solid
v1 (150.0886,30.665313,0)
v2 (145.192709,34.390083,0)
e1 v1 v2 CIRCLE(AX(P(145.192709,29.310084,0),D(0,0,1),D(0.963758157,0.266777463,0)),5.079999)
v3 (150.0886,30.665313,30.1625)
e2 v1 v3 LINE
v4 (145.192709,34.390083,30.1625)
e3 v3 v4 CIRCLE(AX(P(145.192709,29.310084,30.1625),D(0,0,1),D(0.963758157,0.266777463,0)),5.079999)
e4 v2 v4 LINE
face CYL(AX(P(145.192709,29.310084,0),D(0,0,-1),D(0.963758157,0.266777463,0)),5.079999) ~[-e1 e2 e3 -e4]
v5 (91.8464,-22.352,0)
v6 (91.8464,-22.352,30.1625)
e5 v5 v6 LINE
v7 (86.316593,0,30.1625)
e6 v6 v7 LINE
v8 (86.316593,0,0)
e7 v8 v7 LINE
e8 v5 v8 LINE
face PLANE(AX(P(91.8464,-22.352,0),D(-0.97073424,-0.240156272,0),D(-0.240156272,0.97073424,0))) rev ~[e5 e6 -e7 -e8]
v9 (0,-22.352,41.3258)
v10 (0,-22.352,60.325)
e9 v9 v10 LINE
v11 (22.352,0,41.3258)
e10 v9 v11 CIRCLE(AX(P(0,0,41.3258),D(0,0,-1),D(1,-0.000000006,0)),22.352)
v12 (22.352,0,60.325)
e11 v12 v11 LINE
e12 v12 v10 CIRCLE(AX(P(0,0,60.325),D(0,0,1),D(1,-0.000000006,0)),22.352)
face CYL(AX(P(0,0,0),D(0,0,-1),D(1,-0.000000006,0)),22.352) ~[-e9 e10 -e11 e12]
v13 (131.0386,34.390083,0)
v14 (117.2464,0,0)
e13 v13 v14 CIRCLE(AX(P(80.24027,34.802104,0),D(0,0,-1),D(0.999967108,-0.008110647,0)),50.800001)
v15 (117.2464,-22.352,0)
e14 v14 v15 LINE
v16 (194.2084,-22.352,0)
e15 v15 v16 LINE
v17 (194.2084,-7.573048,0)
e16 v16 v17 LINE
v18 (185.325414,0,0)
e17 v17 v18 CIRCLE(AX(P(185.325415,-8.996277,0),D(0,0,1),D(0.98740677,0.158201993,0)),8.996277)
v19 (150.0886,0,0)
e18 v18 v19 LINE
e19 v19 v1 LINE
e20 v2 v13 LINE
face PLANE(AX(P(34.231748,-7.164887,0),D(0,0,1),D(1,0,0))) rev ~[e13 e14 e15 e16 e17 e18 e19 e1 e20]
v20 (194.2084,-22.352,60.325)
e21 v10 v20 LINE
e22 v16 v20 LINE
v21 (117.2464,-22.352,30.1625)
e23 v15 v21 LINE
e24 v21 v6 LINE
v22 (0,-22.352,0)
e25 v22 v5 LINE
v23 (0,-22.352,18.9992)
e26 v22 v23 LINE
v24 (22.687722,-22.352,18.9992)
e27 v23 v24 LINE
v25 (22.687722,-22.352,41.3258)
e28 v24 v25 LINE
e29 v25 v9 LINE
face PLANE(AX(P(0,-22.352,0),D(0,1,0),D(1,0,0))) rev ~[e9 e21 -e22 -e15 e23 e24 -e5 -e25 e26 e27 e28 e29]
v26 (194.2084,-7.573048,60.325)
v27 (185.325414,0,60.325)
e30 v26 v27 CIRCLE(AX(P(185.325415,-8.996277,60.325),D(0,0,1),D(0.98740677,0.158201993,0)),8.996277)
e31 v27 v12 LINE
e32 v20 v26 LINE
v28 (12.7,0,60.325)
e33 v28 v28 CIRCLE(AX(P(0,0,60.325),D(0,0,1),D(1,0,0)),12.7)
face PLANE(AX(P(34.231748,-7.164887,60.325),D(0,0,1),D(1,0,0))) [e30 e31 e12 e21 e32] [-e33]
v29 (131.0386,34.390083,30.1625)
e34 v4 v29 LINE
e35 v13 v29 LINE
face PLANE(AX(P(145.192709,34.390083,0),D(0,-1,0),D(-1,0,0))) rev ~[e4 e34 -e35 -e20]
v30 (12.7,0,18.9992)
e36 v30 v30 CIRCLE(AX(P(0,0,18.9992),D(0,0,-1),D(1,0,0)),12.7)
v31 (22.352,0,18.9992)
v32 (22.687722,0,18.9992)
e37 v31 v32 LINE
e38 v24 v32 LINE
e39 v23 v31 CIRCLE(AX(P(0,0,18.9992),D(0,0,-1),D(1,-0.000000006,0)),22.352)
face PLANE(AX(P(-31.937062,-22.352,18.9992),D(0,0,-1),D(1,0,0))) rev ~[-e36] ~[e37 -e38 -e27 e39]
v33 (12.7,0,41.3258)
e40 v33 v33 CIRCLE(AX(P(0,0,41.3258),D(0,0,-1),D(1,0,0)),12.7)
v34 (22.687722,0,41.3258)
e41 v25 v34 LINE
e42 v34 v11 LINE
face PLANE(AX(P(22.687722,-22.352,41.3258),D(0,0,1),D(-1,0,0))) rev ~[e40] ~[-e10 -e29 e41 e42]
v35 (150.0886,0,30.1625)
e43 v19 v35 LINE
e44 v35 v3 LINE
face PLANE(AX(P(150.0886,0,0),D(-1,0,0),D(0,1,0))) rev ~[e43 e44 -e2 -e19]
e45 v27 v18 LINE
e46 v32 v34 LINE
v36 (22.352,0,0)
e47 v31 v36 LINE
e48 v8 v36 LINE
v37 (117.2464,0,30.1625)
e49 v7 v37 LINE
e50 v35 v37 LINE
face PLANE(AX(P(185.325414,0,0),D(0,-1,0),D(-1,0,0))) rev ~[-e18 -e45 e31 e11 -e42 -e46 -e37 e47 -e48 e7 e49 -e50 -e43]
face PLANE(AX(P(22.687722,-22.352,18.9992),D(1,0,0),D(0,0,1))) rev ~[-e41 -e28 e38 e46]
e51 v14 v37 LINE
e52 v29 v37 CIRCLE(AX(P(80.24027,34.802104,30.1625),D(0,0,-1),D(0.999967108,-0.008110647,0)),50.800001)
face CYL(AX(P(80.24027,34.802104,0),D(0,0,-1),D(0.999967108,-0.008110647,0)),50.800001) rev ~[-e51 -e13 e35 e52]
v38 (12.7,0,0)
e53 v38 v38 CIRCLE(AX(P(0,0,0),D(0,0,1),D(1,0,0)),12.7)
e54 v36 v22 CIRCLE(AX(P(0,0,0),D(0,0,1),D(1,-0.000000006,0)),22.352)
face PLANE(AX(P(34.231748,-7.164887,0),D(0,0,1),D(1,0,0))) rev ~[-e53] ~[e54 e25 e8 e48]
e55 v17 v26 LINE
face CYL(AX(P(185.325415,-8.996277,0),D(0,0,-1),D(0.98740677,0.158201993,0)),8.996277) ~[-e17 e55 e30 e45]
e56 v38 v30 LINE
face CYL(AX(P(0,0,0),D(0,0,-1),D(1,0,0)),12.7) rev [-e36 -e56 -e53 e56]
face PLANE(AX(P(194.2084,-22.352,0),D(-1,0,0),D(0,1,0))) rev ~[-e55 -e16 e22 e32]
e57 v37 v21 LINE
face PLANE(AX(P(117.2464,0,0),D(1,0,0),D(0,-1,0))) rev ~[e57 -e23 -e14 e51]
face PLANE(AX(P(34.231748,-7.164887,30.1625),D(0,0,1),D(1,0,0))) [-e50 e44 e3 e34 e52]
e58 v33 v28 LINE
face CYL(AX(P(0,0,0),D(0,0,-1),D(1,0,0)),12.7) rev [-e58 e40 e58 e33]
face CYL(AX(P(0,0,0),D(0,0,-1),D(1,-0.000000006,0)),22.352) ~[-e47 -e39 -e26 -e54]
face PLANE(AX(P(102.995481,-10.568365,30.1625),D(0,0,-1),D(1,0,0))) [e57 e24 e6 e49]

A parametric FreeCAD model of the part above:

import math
import FreeCAD as App
import Part
import Sketcher
Q = App.Units.Quantity


def add_polygon(sketch, points):
    """Adds a closed chain of lines whose ends are joined by coincident constraints."""
    first, n = sketch.GeometryCount, len(points)
    for a, b in zip(points, points[1:] + points[:1]):
        sketch.addGeometry(Part.LineSegment(App.Vector(*a, 0), App.Vector(*b, 0)), False)
    for i in range(n):
        sketch.addConstraint(Sketcher.Constraint("Coincident", first + i, 2, first + (i + 1) % n, 1))

doc = App.newDocument("Part")
body = doc.addObject("PartDesign::Body", "Body")

# Sketch on XY plane
sketch1 = body.newObject("Sketcher::SketchObject", "Sketch")
sketch1.AttachmentSupport = (doc.getObject("XY_Plane"), [""])
sketch1.MapMode = "FlatFace"
sketch1.addGeometry([
    Part.ArcOfCircle(Part.Circle(App.Vector(0, 0, 0), App.Vector(0, 0, 1), 22), math.radians(0), math.radians(270)),  # 0
    Part.LineSegment(App.Vector(0, -22, 0), App.Vector(194, -22, 0)),  # 1
    Part.LineSegment(App.Vector(194, -22, 0), App.Vector(194, -8, 0)),  # 2
    Part.ArcOfCircle(Part.Circle(App.Vector(185, -9, 0), App.Vector(0, 0, 1), 9), math.radians(9), math.radians(90)),  # 3
    Part.LineSegment(App.Vector(185, 0, 0), App.Vector(22, 0, 0)),  # 4
    Part.Circle(App.Vector(0, 0, 0), App.Vector(0, 0, 1), 13),  # 5
], False)
sketch1.addConstraint([
    Sketcher.Constraint("Tangent", 0, 2, 1, 1),
    Sketcher.Constraint("Coincident", 1, 2, 2, 1),
    Sketcher.Constraint("Coincident", 2, 2, 3, 1),
    Sketcher.Constraint("Tangent", 3, 2, 4, 1),
    Sketcher.Constraint("Coincident", 4, 2, 0, 1),
    Sketcher.Constraint("Horizontal", 1),
    Sketcher.Constraint("Vertical", 2),
    Sketcher.Constraint("Horizontal", 4),
    Sketcher.Constraint("Coincident", 0, 3, -1, 1),
    Sketcher.Constraint("Coincident", 5, 3, -1, 1),
    Sketcher.Constraint("PointOnObject", 3, 2, -1),
    Sketcher.Constraint("Diameter", 5, Q("1 in")),
    Sketcher.Constraint("Radius", 0, Q("0.88 in")),
    Sketcher.Constraint("DistanceX", 1, 1, 1, 2, Q("7.646 in")),
    Sketcher.Constraint("Radius", 3, 8.996277),
    Sketcher.Constraint("DistanceX", 4, 2, 4, 1, 162.973414),
])
pad1 = body.newObject("PartDesign::Pad", "Pad")
pad1.Profile = sketch1
pad1.Length = Q("2.375 in")

# Sketch on XY plane
sketch2 = body.newObject("Sketcher::SketchObject", "Sketch001")
sketch2.AttachmentSupport = (doc.getObject("XY_Plane"), [""])
sketch2.MapMode = "FlatFace"
sketch2.addGeometry([
    Part.ArcOfCircle(Part.Circle(App.Vector(0, 0, 0), App.Vector(0, 0, 1), 22), math.radians(0), math.radians(270)),  # 0
    Part.LineSegment(App.Vector(0, -22, 0), App.Vector(194, -22, 0)),  # 1
    Part.LineSegment(App.Vector(194, -22, 0), App.Vector(194, -8, 0)),  # 2
    Part.ArcOfCircle(Part.Circle(App.Vector(185, -9, 0), App.Vector(0, 0, 1), 9), math.radians(9), math.radians(90)),  # 3
    Part.LineSegment(App.Vector(185, 0, 0), App.Vector(150, 0, 0)),  # 4
    Part.LineSegment(App.Vector(150, 0, 0), App.Vector(150, 31, 0)),  # 5
    Part.ArcOfCircle(Part.Circle(App.Vector(145, 29, 0), App.Vector(0, 0, 1), 5), math.radians(15), math.radians(90)),  # 6
    Part.LineSegment(App.Vector(145, 34, 0), App.Vector(131, 34, 0)),  # 7
    Part.ArcOfCircle(Part.Circle(App.Vector(80, 35, 0), App.Vector(0, 0, 1), 51), math.radians(-43), math.radians(0)),  # 8
    Part.LineSegment(App.Vector(117, 0, 0), App.Vector(22, 0, 0)),  # 9
    Part.Circle(App.Vector(0, 0, 0), App.Vector(0, 0, 1), 13),  # 10
], False)
sketch2.addConstraint([
    Sketcher.Constraint("Tangent", 0, 2, 1, 1),
    Sketcher.Constraint("Coincident", 1, 2, 2, 1),
    Sketcher.Constraint("Coincident", 2, 2, 3, 1),
    Sketcher.Constraint("Tangent", 3, 2, 4, 1),
    Sketcher.Constraint("Coincident", 4, 2, 5, 1),
    Sketcher.Constraint("Coincident", 5, 2, 6, 1),
    Sketcher.Constraint("Tangent", 6, 2, 7, 1),
    Sketcher.Constraint("Coincident", 7, 2, 8, 2),
    Sketcher.Constraint("Coincident", 8, 1, 9, 1),
    Sketcher.Constraint("Coincident", 9, 2, 0, 1),
    Sketcher.Constraint("Horizontal", 1),
    Sketcher.Constraint("Vertical", 2),
    Sketcher.Constraint("Horizontal", 4),
    Sketcher.Constraint("Vertical", 5),
    Sketcher.Constraint("Horizontal", 7),
    Sketcher.Constraint("Horizontal", 9),
    Sketcher.Constraint("Coincident", 0, 3, -1, 1),
    Sketcher.Constraint("Coincident", 10, 3, -1, 1),
    Sketcher.Constraint("PointOnObject", 3, 2, -1),
    Sketcher.Constraint("PointOnObject", 8, 1, -1),
    Sketcher.Constraint("Diameter", 10, Q("1 in")),
    Sketcher.Constraint("Radius", 8, Q("2 in")),
    Sketcher.Constraint("Radius", 6, Q("0.2 in")),
    Sketcher.Constraint("Radius", 0, Q("0.88 in")),
    Sketcher.Constraint("DistanceX", 1, 1, 1, 2, Q("7.646 in")),
    Sketcher.Constraint("DistanceX", 9, 2, 9, 1, Q("3.736 in")),
    Sketcher.Constraint("DistanceX", 7, 2, 5, 2, Q("0.75 in")),
    Sketcher.Constraint("DistanceX", -1, 1, 4, 2, Q("5.909 in")),
    Sketcher.Constraint("Radius", 3, 8.996277),
    Sketcher.Constraint("DistanceX", 7, 2, 7, 1, 14.154109),
    Sketcher.Constraint("DistanceX", 4, 2, 4, 1, 35.236814),
    Sketcher.Constraint("DistanceY", 5, 1, 5, 2, 30.665313),
])
pad2 = body.newObject("PartDesign::Pad", "Pad001")
pad2.Profile = sketch2
pad2.Length = Q("1.1875 in")

# Sketch on XZ plane
sketch3 = body.newObject("Sketcher::SketchObject", "Sketch002")
sketch3.AttachmentSupport = (doc.getObject("XZ_Plane"), [""])
sketch3.MapMode = "FlatFace"
sketch3.AttachmentOffset = App.Placement(App.Vector(0, 0, 0.88 * 25.4), App.Rotation())
add_polygon(sketch3, [(-32, 41), (-32, 19), (23, 19), (23, 41)])  # lines 0-3
sketch3.addConstraint([
    Sketcher.Constraint("Vertical", 0),
    Sketcher.Constraint("Horizontal", 1),
    Sketcher.Constraint("Vertical", 2),
    Sketcher.Constraint("Horizontal", 3),
    Sketcher.Constraint("DistanceY", 0, 2, 0, 1, Q("0.879 in")),
    Sketcher.Constraint("DistanceY", -1, 1, 0, 2, Q("0.748 in")),
    Sketcher.Constraint("DistanceX", 1, 1, 1, 2, 54.624785),
    Sketcher.Constraint("DistanceX", 0, 2, -1, 1, 31.937062),
])
pocket1 = body.newObject("PartDesign::Pocket", "Pocket")
pocket1.Profile = sketch3
pocket1.Type = "ThroughAll"

# Sketch on XY plane
sketch4 = body.newObject("Sketcher::SketchObject", "Sketch003")
sketch4.AttachmentSupport = (doc.getObject("XY_Plane"), [""])
sketch4.MapMode = "FlatFace"
add_polygon(sketch4, [(86, 0), (117, 0), (117, -22), (92, -22)])  # lines 0-3
sketch4.addConstraint([
    Sketcher.Constraint("Horizontal", 0),
    Sketcher.Constraint("Vertical", 1),
    Sketcher.Constraint("Horizontal", 2),
    Sketcher.Constraint("PointOnObject", 0, 2, -1),
    Sketcher.Constraint("DistanceX", 2, 2, 2, 1, Q("1 in")),
    Sketcher.Constraint("DistanceY", 1, 2, 1, 1, Q("0.88 in")),
    Sketcher.Constraint("DistanceX", -1, 1, 0, 2, Q("4.616 in")),
    Sketcher.Constraint("Distance", 3, 23.02587),
])
pocket2 = body.newObject("PartDesign::Pocket", "Pocket001")
pocket2.Profile = sketch4
pocket2.Length = Q("1.1875 in")
pocket2.Reversed = True

doc.recompute()
